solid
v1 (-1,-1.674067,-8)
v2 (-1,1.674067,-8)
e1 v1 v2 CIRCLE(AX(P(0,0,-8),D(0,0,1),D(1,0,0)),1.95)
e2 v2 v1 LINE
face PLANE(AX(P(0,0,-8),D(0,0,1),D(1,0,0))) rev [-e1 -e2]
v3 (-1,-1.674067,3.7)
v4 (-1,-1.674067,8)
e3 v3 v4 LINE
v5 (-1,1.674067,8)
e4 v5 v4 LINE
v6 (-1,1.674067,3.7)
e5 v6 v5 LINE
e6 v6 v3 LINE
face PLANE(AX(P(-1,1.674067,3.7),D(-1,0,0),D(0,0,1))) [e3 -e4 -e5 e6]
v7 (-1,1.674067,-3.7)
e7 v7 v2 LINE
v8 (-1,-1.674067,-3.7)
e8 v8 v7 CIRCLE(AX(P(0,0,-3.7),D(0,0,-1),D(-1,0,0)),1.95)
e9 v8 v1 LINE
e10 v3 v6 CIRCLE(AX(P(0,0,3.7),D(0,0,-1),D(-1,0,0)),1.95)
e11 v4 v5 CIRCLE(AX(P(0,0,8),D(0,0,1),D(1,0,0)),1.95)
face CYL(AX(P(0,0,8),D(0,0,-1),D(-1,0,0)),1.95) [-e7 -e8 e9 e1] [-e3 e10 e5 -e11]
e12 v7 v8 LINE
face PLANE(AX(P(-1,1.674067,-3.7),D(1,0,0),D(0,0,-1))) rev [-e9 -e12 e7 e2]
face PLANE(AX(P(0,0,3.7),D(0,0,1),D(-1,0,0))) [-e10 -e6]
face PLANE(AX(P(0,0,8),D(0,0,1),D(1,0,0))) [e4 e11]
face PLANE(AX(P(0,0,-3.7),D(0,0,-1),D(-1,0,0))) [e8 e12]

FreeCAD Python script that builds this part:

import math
import FreeCAD as App
import Part
import Sketcher

V = App.Vector
Q = App.Units.Quantity

doc = App.newDocument("Part")
body = doc.addObject("PartDesign::Body", "Body")

sketch1 = body.newObject("Sketcher::SketchObject", "Sketch")
sketch1.AttachmentSupport = (doc.getObject("XY_Plane"), [""])
sketch1.MapMode = "FlatFace"
sketch1.addGeometry(Part.Circle(V(0, 0, 0), V(0, 0, 1), 1.9), False)
sketch1.addConstraint([
    Sketcher.Constraint("Coincident", 0, 3, -1, 1),
    Sketcher.Constraint("Diameter", 0, Q("3.9 mm")),
])
pad1 = body.newObject("PartDesign::Pad", "Pad")
pad1.Profile = sketch1
pad1.Length = 16
pad1.Midplane = True

sketch2 = body.newObject("Sketcher::SketchObject", "Sketch001")
sketch2.AttachmentSupport = (doc.getObject("XY_Plane"), [""])
sketch2.MapMode = "FlatFace"
sketch2.AttachmentOffset = App.Placement(V(0, 0, -8), App.Rotation())
sketch2.addGeometry([
    Part.LineSegment(V(-1, 1.7, 0), V(-1, -1.7, 0)),
    Part.ArcOfCircle(Part.Circle(V(0, 0, 0), V(0, 0, 1), 1.9), math.radians(121), math.radians(239)),
], False)
sketch2.addConstraint([
    Sketcher.Constraint("Coincident", 0, 1, 1, 1),
    Sketcher.Constraint("Coincident", 1, 2, 0, 2),
    Sketcher.Constraint("Vertical", 0),
    Sketcher.Constraint("Coincident", 1, 3, -1, 1),
    Sketcher.Constraint("Radius", 1, Q("1.95 mm")),
    Sketcher.Constraint("DistanceX", 0, 1, -1, 1, Q("1 mm")),
])
pocket1 = body.newObject("PartDesign::Pocket", "Pocket")
pocket1.Profile = sketch2
pocket1.Length = 4.3
pocket1.Reversed = True
doc.recompute()

mirrored = body.newObject("PartDesign::Mirrored", "Mirrored")
mirrored.Originals = [pocket1]
mirrored.MirrorPlane = (doc.getObject("XY_Plane"), [""])
body.Tip = mirrored

doc.recompute()
